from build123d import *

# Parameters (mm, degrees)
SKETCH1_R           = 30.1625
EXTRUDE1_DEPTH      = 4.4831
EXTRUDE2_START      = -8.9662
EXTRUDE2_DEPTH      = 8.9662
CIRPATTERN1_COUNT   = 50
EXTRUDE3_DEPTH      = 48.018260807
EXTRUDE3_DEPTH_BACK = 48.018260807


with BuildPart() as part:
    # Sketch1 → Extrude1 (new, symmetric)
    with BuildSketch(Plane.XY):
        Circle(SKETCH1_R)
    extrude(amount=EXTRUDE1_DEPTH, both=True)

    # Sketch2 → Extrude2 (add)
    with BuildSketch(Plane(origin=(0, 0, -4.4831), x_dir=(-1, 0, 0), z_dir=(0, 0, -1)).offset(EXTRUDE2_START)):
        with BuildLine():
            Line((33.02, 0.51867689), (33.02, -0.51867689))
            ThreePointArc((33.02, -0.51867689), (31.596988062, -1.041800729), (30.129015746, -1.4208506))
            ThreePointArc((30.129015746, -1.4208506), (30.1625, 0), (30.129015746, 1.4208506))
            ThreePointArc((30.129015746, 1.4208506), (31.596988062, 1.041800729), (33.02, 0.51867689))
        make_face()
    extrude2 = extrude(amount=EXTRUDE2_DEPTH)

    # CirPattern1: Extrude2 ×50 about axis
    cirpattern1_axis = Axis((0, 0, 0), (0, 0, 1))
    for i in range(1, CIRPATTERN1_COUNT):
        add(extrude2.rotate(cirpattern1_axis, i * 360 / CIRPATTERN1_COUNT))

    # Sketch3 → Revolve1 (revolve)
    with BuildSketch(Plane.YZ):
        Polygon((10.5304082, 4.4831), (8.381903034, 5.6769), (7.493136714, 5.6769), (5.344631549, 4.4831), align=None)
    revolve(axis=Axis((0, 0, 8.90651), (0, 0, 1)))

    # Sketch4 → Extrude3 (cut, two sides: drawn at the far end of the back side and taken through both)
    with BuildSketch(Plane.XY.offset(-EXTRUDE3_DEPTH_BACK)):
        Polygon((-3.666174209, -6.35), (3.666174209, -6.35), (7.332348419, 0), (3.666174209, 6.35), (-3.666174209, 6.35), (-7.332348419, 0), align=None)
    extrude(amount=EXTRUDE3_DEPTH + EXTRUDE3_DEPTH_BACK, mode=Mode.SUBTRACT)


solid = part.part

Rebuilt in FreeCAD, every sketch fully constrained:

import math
import FreeCAD as App
import Part
import Sketcher

V = App.Vector
Q = App.Units.Quantity


def add_polygon(sketch, points):
    """Adds a closed chain of lines whose ends are joined by coincident constraints."""
    first, n = sketch.GeometryCount, len(points)
    for a, b in zip(points, points[1:] + points[:1]):
        sketch.addGeometry(Part.LineSegment(App.Vector(*a, 0), App.Vector(*b, 0)), False)
    for i in range(n):
        sketch.addConstraint(Sketcher.Constraint("Coincident", first + i, 2, first + (i + 1) % n, 1))

doc = App.newDocument("Part")
params = doc.addObject("Spreadsheet::Sheet", "Params")
for row, (alias, value) in enumerate([
    ("sketch1_diameter", "2.375 in"),
    ("pad1_length", "0.353 in"),
    ("sketch2_radius", "1.1875 in"),
    ("pad2_length", "0.353 in"),
    ("revolution_angle", "360 deg"),
], start=1):
    params.set(f"A{row}", alias)
    params.set(f"B{row}", "=" + value)
    params.setAlias(f"B{row}", alias)

body = doc.addObject("PartDesign::Body", "Body")

sketch1 = body.newObject("Sketcher::SketchObject", "Sketch")
sketch1.AttachmentSupport = (doc.getObject("XY_Plane"), [""])
sketch1.MapMode = "FlatFace"
sketch1.addGeometry(Part.Circle(V(0, 0, 0), V(0, 0, 1), 30.1625), False)
sketch1.addConstraint(Sketcher.Constraint("Coincident", 0, 3, -1, 1))
sketch1.addConstraint(Sketcher.Constraint("Diameter", 0, Q("2.375 in")))
sketch1.setExpression("Constraints[1]", "Params.sketch1_diameter")
pad1 = body.newObject("PartDesign::Pad", "Pad")
pad1.Profile = sketch1
pad1.setExpression("Length", "Params.pad1_length")
pad1.Midplane = True

sketch2 = body.newObject("Sketcher::SketchObject", "Sketch001")
sketch2.AttachmentSupport = (doc.getObject("XY_Plane"), [""])
sketch2.MapMode = "FlatFace"
sketch2.AttachmentOffset = App.Placement(V(0, 0, 0.1765 * 25.4), App.Rotation())
sketch2.addGeometry(Part.LineSegment(V(-33.02, -0.518677, 0), V(-33.02, 0.518677, 0)), False)
sketch2.addGeometry(Part.ArcOfCircle(Part.Circle(V(-27.06, -13.49682, 0), V(0, 0, 1), 15.230094), math.radians(101.625273), math.radians(113.037312)), False)
sketch2.addGeometry(Part.ArcOfCircle(Part.Circle(V(0, 0, 0), V(0, 0, 1), 30.1625), math.radians(177.299996), math.radians(182.700004)), False)
sketch2.addGeometry(Part.ArcOfCircle(Part.Circle(V(-27.06, 13.49682, 0), V(0, 0, 1), 15.230094), math.radians(-113.037312), math.radians(-101.625273)), False)
sketch2.addConstraint(Sketcher.Constraint("Coincident", 0, 2, 1, 2))
sketch2.addConstraint(Sketcher.Constraint("Coincident", 1, 1, 2, 1))
sketch2.addConstraint(Sketcher.Constraint("Coincident", 2, 2, 3, 2))
sketch2.addConstraint(Sketcher.Constraint("Coincident", 3, 1, 0, 1))
sketch2.addConstraint(Sketcher.Constraint("Vertical", 0))
sketch2.addConstraint(Sketcher.Constraint("Coincident", 2, 3, -1, 1))
sketch2.addConstraint(Sketcher.Constraint("Equal", 1, 3))
sketch2.addConstraint(Sketcher.Constraint("Symmetric", 1, 3, 3, 3, -1))
sketch2.addConstraint(Sketcher.Constraint("Radius", 2, Q("1.1875 in")))
sketch2.addConstraint(Sketcher.Constraint("DistanceX", 0, 2, -1, 1, Q("1.3 in")))
sketch2.addConstraint(Sketcher.Constraint("Radius", 1, 15.230094))
sketch2.addConstraint(Sketcher.Constraint("DistanceX", 1, 3, -1, 1, 27.06))
sketch2.addConstraint(Sketcher.Constraint("DistanceY", 2, 2, 1, 1, 2.841701))
sketch2.setExpression("Constraints[8]", "Params.sketch2_radius")
pad2 = body.newObject("PartDesign::Pad", "Pad001")
pad2.Profile = sketch2
pad2.setExpression("Length", "Params.pad2_length")
pad2.Reversed = True
doc.recompute()

polarpattern = body.newObject("PartDesign::PolarPattern", "PolarPattern")
polarpattern.Originals = [pad2]
polarpattern.Axis = (doc.getObject("Z_Axis"), [""])
polarpattern.Angle = 360
polarpattern.Occurrences = 50
body.Tip = polarpattern

sketch3 = body.newObject("Sketcher::SketchObject", "Sketch002")
sketch3.AttachmentSupport = (doc.getObject("YZ_Plane"), [""])
sketch3.MapMode = "FlatFace"
add_polygon(sketch3, [(10.530408, 4.4831), (8.381903, 5.6769), (7.493137, 5.6769), (5.344632, 4.4831)])
sketch3.addConstraint(Sketcher.Constraint("Horizontal", 1))
sketch3.addConstraint(Sketcher.Constraint("Horizontal", 3))
sketch3.addConstraint(Sketcher.Constraint("Equal", 0, 2))
sketch3.addConstraint(Sketcher.Constraint("DistanceY", 2, 2, 1, 2, Q("0.047 in")))
sketch3.addConstraint(Sketcher.Constraint("DistanceY", -1, 1, 0, 2, Q("0.2235 in")))
sketch3.addConstraint(Sketcher.Constraint("Distance", 0, 2.457892))
sketch3.addConstraint(Sketcher.Constraint("DistanceX", 1, 2, 1, 1, 0.888766))
sketch3.addConstraint(Sketcher.Constraint("DistanceX", -1, 1, 2, 2, 5.344632))
revolution = body.newObject("PartDesign::Revolution", "Revolution")
revolution.Profile = sketch3
revolution.ReferenceAxis = (sketch3, ["V_Axis"])
revolution.setExpression("Angle", "Params.revolution_angle")

sketch4 = body.newObject("Sketcher::SketchObject", "Sketch003")
sketch4.AttachmentSupport = (doc.getObject("XY_Plane"), [""])
sketch4.MapMode = "FlatFace"
add_polygon(sketch4, [(-3.666174, -6.35), (3.666174, -6.35), (7.332348, 0), (3.666174, 6.35), (-3.666174, 6.35), (-7.332348, 0)])
sketch4.addConstraint(Sketcher.Constraint("Horizontal", 0))
sketch4.addConstraint(Sketcher.Constraint("Horizontal", 3))
sketch4.addConstraint(Sketcher.Constraint("Symmetric", 0, 2, 3, 2, -1, 1))
sketch4.addConstraint(Sketcher.Constraint("Symmetric", 1, 2, 4, 2, -1, 1))
sketch4.addConstraint(Sketcher.Constraint("PointOnObject", 1, 2, -1))
sketch4.addConstraint(Sketcher.Constraint("Parallel", 2, 5))
sketch4.addConstraint(Sketcher.Constraint("Vertical", 0, 2, 2, 2))
sketch4.addConstraint(Sketcher.Constraint("Angle", 1, Q("60 deg")))
sketch4.addConstraint(Sketcher.Constraint("DistanceY", 0, 2, 2, 2, Q("0.5 in")))
sketch4.addConstraint(Sketcher.Constraint("DistanceX", 0, 1, 0, 2, 7.332348))
pocket1 = body.newObject("PartDesign::Pocket", "Pocket")
pocket1.Profile = sketch4
pocket1.Type = "ThroughAll"
pocket1.Midplane = True

doc.recompute()
